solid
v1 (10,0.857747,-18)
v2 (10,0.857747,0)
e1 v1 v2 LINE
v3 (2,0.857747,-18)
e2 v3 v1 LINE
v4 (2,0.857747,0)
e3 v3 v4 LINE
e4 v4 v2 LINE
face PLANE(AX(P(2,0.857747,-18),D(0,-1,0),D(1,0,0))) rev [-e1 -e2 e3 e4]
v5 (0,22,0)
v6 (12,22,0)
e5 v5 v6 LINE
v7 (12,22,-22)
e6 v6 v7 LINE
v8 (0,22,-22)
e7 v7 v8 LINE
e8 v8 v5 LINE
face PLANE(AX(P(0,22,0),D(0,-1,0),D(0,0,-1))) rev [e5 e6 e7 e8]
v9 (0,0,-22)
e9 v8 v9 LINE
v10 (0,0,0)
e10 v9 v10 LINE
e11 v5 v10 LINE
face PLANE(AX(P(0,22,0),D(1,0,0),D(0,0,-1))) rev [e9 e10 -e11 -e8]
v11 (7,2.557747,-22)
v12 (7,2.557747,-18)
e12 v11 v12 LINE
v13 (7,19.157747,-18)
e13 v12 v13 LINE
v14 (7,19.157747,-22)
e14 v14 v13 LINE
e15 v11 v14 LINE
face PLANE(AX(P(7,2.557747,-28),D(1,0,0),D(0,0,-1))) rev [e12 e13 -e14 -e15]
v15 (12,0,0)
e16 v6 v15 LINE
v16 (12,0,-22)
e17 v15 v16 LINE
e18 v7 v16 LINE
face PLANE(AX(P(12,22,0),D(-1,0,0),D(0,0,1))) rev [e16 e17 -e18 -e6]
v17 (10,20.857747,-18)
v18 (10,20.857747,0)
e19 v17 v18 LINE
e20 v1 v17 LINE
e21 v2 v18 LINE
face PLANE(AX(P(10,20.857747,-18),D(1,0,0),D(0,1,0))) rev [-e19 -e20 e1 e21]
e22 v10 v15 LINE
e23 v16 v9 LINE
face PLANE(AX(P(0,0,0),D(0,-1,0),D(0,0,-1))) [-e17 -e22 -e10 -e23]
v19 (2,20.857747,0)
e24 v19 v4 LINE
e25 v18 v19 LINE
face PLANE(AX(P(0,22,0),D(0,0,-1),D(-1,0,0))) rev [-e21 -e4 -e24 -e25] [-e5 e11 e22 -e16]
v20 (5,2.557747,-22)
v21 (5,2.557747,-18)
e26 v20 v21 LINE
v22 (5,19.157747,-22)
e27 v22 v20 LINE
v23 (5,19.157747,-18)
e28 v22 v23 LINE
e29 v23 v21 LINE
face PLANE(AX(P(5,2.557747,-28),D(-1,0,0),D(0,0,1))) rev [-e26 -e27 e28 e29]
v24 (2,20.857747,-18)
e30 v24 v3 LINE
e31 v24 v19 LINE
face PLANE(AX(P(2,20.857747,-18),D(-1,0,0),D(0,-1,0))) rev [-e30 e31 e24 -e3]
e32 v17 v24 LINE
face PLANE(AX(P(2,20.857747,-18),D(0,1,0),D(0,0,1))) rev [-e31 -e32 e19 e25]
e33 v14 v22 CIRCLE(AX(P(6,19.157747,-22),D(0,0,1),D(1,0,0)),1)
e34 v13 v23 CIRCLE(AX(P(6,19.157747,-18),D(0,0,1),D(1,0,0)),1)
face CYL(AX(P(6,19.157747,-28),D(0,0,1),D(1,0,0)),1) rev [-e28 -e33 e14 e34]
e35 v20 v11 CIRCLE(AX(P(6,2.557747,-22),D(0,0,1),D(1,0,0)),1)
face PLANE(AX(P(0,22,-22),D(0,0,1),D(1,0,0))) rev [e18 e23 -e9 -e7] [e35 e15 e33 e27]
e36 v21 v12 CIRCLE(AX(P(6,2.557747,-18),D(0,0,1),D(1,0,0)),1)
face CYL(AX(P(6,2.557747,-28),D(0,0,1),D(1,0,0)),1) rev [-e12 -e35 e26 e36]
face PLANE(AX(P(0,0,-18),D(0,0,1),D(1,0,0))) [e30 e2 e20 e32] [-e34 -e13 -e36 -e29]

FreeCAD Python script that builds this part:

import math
import FreeCAD as App
import Part
import Sketcher

V = App.Vector

doc = App.newDocument("Part")
params = doc.addObject("Spreadsheet::Sheet", "Params")
for row, (alias, value) in enumerate([
    ("sketch1_width", "12 mm"),
    ("sketch1_height", "22 mm"),
    ("pad1_length", "22 mm"),
    ("sketch2_width", "8 mm"),
    ("sketch2_height", "20 mm"),
    ("pocket1_length", "18 mm"),
    ("sketch3_radius", "1 mm"),
    ("sketch3_height", "16.6 mm"),
    ("pocket2_length", "10 mm"),
], start=1):
    params.set(f"A{row}", alias)
    params.set(f"B{row}", "=" + value)
    params.setAlias(f"B{row}", alias)

body = doc.addObject("PartDesign::Body", "Body")

# Sketch on XZ plane
sketch1 = doc.addObject("Sketcher::SketchObject", "Sketch")
body.addObject(sketch1)
sketch1.AttachmentSupport = (doc.XZ_Plane, [""])
sketch1.MapMode = "FlatFace"
sketch1.addGeometry([
    Part.LineSegment(V(0, -22, 0), V(0, 0, 0)),
    Part.LineSegment(V(0, 0, 0), V(12, 0, 0)),
    Part.LineSegment(V(12, 0, 0), V(12, -22, 0)),
    Part.LineSegment(V(12, -22, 0), V(0, -22, 0)),
], False)
sketch1.addConstraint([
    Sketcher.Constraint("Coincident", 0, 2, 1, 1),
    Sketcher.Constraint("Coincident", 1, 2, 2, 1),
    Sketcher.Constraint("Coincident", 2, 2, 3, 1),
    Sketcher.Constraint("Coincident", 3, 2, 0, 1),
    Sketcher.Constraint("Vertical", 0),
    Sketcher.Constraint("Horizontal", 1),
    Sketcher.Constraint("Vertical", 2),
    Sketcher.Constraint("Horizontal", 3),
    Sketcher.Constraint("Coincident", 0, 2, -1, 1),
    Sketcher.Constraint("DistanceX", 1, 1, 1, 2, 12.0),
    Sketcher.Constraint("DistanceY", 0, 1, 0, 2, 22.0),
])
sketch1.setExpression("Constraints[9]", "Params.sketch1_width")
sketch1.setExpression("Constraints[10]", "Params.sketch1_height")
pad1 = doc.addObject("PartDesign::Pad", "Pad")
body.addObject(pad1)
pad1.Profile = sketch1
pad1.setExpression("Length", "Params.pad1_length")
pad1.Reversed = True

# Sketch on XY plane
sketch2 = doc.addObject("Sketcher::SketchObject", "Sketch001")
body.addObject(sketch2)
sketch2.AttachmentSupport = (doc.XY_Plane, [""])
sketch2.MapMode = "FlatFace"
sketch2.addGeometry([
    Part.LineSegment(V(2, 21, 0), V(2, 1, 0)),
    Part.LineSegment(V(2, 1, 0), V(10, 1, 0)),
    Part.LineSegment(V(10, 1, 0), V(10, 21, 0)),
    Part.LineSegment(V(10, 21, 0), V(2, 21, 0)),
], False)
sketch2.addConstraint([
    Sketcher.Constraint("Coincident", 0, 2, 1, 1),
    Sketcher.Constraint("Coincident", 1, 2, 2, 1),
    Sketcher.Constraint("Coincident", 2, 2, 3, 1),
    Sketcher.Constraint("Coincident", 3, 2, 0, 1),
    Sketcher.Constraint("Vertical", 0),
    Sketcher.Constraint("Horizontal", 1),
    Sketcher.Constraint("Vertical", 2),
    Sketcher.Constraint("Horizontal", 3),
    Sketcher.Constraint("DistanceX", 1, 1, 1, 2, 8.0),
    Sketcher.Constraint("DistanceY", 0, 2, 0, 1, 20.0),
    Sketcher.Constraint("DistanceX", -1, 1, 0, 2, 2.0),
    Sketcher.Constraint("DistanceY", -1, 1, 0, 2, 0.857747),
])
sketch2.setExpression("Constraints[8]", "Params.sketch2_width")
sketch2.setExpression("Constraints[9]", "Params.sketch2_height")
pocket1 = doc.addObject("PartDesign::Pocket", "Pocket")
body.addObject(pocket1)
pocket1.Profile = sketch2
pocket1.setExpression("Length", "Params.pocket1_length")

# Sketch on XY plane
sketch3 = doc.addObject("Sketcher::SketchObject", "Sketch002")
body.addObject(sketch3)
sketch3.AttachmentSupport = (doc.XY_Plane, [""])
sketch3.MapMode = "FlatFace"
sketch3.AttachmentOffset = App.Placement(V(0, 0, -18), App.Rotation())
sketch3.addGeometry([
    Part.LineSegment(V(5, 19.2, 0), V(5, 2.6, 0)),
    Part.ArcOfCircle(Part.Circle(V(6, 2.6, 0), V(0, 0, 1), 1), math.radians(180), math.radians(360)),
    Part.LineSegment(V(7, 2.6, 0), V(7, 19.2, 0)),
    Part.ArcOfCircle(Part.Circle(V(6, 19.2, 0), V(0, 0, 1), 1), math.radians(0), math.radians(180)),
], False)
sketch3.addConstraint([
    Sketcher.Constraint("Tangent", 0, 2, 1, 1),
    Sketcher.Constraint("Tangent", 1, 2, 2, 1),
    Sketcher.Constraint("Tangent", 2, 2, 3, 1),
    Sketcher.Constraint("Tangent", 3, 2, 0, 1),
    Sketcher.Constraint("Vertical", 0),
    Sketcher.Constraint("Vertical", 2),
    Sketcher.Constraint("Radius", 1, 1.0),
    Sketcher.Constraint("DistanceY", 0, 2, 0, 1, 16.6),
    Sketcher.Constraint("DistanceX", -1, 1, 1, 3, 6.0),
    Sketcher.Constraint("DistanceY", -1, 1, 1, 3, 2.557747),
])
sketch3.setExpression("Constraints[6]", "Params.sketch3_radius")
sketch3.setExpression("Constraints[7]", "Params.sketch3_height")
pocket2 = doc.addObject("PartDesign::Pocket", "Pocket001")
body.addObject(pocket2)
pocket2.Profile = sketch3
pocket2.setExpression("Length", "Params.pocket2_length")

doc.recompute()
